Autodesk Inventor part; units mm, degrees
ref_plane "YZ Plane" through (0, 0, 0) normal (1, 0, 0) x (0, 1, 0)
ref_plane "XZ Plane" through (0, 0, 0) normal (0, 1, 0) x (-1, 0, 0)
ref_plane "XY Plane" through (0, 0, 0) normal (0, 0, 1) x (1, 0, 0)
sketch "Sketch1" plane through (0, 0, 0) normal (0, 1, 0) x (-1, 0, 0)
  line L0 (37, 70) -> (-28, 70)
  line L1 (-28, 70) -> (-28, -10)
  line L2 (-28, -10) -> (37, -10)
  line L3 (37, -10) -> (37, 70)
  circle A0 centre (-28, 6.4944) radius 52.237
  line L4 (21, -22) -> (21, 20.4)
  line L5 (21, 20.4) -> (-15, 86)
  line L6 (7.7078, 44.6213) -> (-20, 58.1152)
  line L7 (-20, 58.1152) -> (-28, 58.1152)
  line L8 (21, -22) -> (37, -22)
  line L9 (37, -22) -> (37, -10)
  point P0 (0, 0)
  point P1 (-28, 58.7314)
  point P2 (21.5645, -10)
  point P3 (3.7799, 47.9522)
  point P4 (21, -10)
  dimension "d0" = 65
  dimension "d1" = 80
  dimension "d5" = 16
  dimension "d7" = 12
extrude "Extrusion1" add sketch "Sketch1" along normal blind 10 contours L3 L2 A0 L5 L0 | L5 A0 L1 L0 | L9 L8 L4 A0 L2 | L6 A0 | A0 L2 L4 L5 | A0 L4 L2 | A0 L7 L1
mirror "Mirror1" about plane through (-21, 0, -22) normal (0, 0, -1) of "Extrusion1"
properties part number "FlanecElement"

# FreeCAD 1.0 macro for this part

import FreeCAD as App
import Part
import Sketcher

V = App.Vector

doc = App.newDocument("Part")
body = doc.addObject("PartDesign::Body", "Body")

# Sketch on XZ plane
sketch1 = doc.addObject("Sketcher::SketchObject", "Sketch")
body.addObject(sketch1)
sketch1.AttachmentSupport = (doc.XZ_Plane, [""])
sketch1.MapMode = "FlatFace"
sketch1.addGeometry([
    Part.LineSegment(V(-37, 70, 0), V(28, 70, 0)),  # 0
    Part.LineSegment(V(28, 70, 0), V(28, 58, 0)),  # 1
    Part.LineSegment(V(28, 58, 0), V(20, 58, 0)),  # 2
    Part.LineSegment(V(20, 58, 0), V(-8, 45, 0)),  # 3
    Part.LineSegment(V(-8, 45, 0), V(-21, 20, 0)),  # 4
    Part.LineSegment(V(-21, 20, 0), V(-21, -22, 0)),  # 5
    Part.LineSegment(V(-21, -22, 0), V(-37, -22, 0)),  # 6
    Part.LineSegment(V(-37, -22, 0), V(-37, 70, 0)),  # 7
], False)
sketch1.addConstraint([
    Sketcher.Constraint("Coincident", 0, 2, 1, 1),
    Sketcher.Constraint("Coincident", 1, 2, 2, 1),
    Sketcher.Constraint("Coincident", 2, 2, 3, 1),
    Sketcher.Constraint("Coincident", 3, 2, 4, 1),
    Sketcher.Constraint("Coincident", 4, 2, 5, 1),
    Sketcher.Constraint("Coincident", 5, 2, 6, 1),
    Sketcher.Constraint("Coincident", 6, 2, 7, 1),
    Sketcher.Constraint("Coincident", 7, 2, 0, 1),
    Sketcher.Constraint("Horizontal", 0),
    Sketcher.Constraint("Vertical", 1),
    Sketcher.Constraint("Horizontal", 2),
    Sketcher.Constraint("Vertical", 5),
    Sketcher.Constraint("Horizontal", 6),
    Sketcher.Constraint("Vertical", 7),
    Sketcher.Constraint("DistanceX", 0, 1, 0, 2, 65.0),
    Sketcher.Constraint("DistanceX", 6, 2, 6, 1, 16.0),
    Sketcher.Constraint("DistanceX", 2, 2, 2, 1, 8.0),
    Sketcher.Constraint("DistanceY", 7, 1, 7, 2, 92.0),
    Sketcher.Constraint("DistanceY", 5, 2, 5, 1, 42.4),
    Sketcher.Constraint("DistanceX", -1, 1, 0, 2, 28.0),
    Sketcher.Constraint("DistanceY", -1, 1, 0, 2, 70.0),
    Sketcher.Constraint("Distance", 3, 30.819),
    Sketcher.Constraint("DistanceY", 1, 2, 1, 1, 11.8848),
    Sketcher.Constraint("DistanceY", 3, 2, 2, 2, 13.494),
])
pad1 = doc.addObject("PartDesign::Pad", "Pad")
body.addObject(pad1)
pad1.Profile = sketch1
pad1.Length = 10
pad1.Reversed = True
doc.recompute()

datumplane = doc.addObject("PartDesign::Plane", "DatumPlane")
body.addObject(datumplane)
datumplane.AttachmentSupport = (doc.XY_Plane, [""])
datumplane.MapMode = "FlatFace"
datumplane.AttachmentOffset = App.Placement(V(0, 0, -22), App.Rotation())
mirrored = doc.addObject("PartDesign::Mirrored", "Mirrored")
body.addObject(mirrored)
mirrored.Originals = [pad1]
mirrored.MirrorPlane = (datumplane, [""])
body.Tip = mirrored

doc.recompute()
